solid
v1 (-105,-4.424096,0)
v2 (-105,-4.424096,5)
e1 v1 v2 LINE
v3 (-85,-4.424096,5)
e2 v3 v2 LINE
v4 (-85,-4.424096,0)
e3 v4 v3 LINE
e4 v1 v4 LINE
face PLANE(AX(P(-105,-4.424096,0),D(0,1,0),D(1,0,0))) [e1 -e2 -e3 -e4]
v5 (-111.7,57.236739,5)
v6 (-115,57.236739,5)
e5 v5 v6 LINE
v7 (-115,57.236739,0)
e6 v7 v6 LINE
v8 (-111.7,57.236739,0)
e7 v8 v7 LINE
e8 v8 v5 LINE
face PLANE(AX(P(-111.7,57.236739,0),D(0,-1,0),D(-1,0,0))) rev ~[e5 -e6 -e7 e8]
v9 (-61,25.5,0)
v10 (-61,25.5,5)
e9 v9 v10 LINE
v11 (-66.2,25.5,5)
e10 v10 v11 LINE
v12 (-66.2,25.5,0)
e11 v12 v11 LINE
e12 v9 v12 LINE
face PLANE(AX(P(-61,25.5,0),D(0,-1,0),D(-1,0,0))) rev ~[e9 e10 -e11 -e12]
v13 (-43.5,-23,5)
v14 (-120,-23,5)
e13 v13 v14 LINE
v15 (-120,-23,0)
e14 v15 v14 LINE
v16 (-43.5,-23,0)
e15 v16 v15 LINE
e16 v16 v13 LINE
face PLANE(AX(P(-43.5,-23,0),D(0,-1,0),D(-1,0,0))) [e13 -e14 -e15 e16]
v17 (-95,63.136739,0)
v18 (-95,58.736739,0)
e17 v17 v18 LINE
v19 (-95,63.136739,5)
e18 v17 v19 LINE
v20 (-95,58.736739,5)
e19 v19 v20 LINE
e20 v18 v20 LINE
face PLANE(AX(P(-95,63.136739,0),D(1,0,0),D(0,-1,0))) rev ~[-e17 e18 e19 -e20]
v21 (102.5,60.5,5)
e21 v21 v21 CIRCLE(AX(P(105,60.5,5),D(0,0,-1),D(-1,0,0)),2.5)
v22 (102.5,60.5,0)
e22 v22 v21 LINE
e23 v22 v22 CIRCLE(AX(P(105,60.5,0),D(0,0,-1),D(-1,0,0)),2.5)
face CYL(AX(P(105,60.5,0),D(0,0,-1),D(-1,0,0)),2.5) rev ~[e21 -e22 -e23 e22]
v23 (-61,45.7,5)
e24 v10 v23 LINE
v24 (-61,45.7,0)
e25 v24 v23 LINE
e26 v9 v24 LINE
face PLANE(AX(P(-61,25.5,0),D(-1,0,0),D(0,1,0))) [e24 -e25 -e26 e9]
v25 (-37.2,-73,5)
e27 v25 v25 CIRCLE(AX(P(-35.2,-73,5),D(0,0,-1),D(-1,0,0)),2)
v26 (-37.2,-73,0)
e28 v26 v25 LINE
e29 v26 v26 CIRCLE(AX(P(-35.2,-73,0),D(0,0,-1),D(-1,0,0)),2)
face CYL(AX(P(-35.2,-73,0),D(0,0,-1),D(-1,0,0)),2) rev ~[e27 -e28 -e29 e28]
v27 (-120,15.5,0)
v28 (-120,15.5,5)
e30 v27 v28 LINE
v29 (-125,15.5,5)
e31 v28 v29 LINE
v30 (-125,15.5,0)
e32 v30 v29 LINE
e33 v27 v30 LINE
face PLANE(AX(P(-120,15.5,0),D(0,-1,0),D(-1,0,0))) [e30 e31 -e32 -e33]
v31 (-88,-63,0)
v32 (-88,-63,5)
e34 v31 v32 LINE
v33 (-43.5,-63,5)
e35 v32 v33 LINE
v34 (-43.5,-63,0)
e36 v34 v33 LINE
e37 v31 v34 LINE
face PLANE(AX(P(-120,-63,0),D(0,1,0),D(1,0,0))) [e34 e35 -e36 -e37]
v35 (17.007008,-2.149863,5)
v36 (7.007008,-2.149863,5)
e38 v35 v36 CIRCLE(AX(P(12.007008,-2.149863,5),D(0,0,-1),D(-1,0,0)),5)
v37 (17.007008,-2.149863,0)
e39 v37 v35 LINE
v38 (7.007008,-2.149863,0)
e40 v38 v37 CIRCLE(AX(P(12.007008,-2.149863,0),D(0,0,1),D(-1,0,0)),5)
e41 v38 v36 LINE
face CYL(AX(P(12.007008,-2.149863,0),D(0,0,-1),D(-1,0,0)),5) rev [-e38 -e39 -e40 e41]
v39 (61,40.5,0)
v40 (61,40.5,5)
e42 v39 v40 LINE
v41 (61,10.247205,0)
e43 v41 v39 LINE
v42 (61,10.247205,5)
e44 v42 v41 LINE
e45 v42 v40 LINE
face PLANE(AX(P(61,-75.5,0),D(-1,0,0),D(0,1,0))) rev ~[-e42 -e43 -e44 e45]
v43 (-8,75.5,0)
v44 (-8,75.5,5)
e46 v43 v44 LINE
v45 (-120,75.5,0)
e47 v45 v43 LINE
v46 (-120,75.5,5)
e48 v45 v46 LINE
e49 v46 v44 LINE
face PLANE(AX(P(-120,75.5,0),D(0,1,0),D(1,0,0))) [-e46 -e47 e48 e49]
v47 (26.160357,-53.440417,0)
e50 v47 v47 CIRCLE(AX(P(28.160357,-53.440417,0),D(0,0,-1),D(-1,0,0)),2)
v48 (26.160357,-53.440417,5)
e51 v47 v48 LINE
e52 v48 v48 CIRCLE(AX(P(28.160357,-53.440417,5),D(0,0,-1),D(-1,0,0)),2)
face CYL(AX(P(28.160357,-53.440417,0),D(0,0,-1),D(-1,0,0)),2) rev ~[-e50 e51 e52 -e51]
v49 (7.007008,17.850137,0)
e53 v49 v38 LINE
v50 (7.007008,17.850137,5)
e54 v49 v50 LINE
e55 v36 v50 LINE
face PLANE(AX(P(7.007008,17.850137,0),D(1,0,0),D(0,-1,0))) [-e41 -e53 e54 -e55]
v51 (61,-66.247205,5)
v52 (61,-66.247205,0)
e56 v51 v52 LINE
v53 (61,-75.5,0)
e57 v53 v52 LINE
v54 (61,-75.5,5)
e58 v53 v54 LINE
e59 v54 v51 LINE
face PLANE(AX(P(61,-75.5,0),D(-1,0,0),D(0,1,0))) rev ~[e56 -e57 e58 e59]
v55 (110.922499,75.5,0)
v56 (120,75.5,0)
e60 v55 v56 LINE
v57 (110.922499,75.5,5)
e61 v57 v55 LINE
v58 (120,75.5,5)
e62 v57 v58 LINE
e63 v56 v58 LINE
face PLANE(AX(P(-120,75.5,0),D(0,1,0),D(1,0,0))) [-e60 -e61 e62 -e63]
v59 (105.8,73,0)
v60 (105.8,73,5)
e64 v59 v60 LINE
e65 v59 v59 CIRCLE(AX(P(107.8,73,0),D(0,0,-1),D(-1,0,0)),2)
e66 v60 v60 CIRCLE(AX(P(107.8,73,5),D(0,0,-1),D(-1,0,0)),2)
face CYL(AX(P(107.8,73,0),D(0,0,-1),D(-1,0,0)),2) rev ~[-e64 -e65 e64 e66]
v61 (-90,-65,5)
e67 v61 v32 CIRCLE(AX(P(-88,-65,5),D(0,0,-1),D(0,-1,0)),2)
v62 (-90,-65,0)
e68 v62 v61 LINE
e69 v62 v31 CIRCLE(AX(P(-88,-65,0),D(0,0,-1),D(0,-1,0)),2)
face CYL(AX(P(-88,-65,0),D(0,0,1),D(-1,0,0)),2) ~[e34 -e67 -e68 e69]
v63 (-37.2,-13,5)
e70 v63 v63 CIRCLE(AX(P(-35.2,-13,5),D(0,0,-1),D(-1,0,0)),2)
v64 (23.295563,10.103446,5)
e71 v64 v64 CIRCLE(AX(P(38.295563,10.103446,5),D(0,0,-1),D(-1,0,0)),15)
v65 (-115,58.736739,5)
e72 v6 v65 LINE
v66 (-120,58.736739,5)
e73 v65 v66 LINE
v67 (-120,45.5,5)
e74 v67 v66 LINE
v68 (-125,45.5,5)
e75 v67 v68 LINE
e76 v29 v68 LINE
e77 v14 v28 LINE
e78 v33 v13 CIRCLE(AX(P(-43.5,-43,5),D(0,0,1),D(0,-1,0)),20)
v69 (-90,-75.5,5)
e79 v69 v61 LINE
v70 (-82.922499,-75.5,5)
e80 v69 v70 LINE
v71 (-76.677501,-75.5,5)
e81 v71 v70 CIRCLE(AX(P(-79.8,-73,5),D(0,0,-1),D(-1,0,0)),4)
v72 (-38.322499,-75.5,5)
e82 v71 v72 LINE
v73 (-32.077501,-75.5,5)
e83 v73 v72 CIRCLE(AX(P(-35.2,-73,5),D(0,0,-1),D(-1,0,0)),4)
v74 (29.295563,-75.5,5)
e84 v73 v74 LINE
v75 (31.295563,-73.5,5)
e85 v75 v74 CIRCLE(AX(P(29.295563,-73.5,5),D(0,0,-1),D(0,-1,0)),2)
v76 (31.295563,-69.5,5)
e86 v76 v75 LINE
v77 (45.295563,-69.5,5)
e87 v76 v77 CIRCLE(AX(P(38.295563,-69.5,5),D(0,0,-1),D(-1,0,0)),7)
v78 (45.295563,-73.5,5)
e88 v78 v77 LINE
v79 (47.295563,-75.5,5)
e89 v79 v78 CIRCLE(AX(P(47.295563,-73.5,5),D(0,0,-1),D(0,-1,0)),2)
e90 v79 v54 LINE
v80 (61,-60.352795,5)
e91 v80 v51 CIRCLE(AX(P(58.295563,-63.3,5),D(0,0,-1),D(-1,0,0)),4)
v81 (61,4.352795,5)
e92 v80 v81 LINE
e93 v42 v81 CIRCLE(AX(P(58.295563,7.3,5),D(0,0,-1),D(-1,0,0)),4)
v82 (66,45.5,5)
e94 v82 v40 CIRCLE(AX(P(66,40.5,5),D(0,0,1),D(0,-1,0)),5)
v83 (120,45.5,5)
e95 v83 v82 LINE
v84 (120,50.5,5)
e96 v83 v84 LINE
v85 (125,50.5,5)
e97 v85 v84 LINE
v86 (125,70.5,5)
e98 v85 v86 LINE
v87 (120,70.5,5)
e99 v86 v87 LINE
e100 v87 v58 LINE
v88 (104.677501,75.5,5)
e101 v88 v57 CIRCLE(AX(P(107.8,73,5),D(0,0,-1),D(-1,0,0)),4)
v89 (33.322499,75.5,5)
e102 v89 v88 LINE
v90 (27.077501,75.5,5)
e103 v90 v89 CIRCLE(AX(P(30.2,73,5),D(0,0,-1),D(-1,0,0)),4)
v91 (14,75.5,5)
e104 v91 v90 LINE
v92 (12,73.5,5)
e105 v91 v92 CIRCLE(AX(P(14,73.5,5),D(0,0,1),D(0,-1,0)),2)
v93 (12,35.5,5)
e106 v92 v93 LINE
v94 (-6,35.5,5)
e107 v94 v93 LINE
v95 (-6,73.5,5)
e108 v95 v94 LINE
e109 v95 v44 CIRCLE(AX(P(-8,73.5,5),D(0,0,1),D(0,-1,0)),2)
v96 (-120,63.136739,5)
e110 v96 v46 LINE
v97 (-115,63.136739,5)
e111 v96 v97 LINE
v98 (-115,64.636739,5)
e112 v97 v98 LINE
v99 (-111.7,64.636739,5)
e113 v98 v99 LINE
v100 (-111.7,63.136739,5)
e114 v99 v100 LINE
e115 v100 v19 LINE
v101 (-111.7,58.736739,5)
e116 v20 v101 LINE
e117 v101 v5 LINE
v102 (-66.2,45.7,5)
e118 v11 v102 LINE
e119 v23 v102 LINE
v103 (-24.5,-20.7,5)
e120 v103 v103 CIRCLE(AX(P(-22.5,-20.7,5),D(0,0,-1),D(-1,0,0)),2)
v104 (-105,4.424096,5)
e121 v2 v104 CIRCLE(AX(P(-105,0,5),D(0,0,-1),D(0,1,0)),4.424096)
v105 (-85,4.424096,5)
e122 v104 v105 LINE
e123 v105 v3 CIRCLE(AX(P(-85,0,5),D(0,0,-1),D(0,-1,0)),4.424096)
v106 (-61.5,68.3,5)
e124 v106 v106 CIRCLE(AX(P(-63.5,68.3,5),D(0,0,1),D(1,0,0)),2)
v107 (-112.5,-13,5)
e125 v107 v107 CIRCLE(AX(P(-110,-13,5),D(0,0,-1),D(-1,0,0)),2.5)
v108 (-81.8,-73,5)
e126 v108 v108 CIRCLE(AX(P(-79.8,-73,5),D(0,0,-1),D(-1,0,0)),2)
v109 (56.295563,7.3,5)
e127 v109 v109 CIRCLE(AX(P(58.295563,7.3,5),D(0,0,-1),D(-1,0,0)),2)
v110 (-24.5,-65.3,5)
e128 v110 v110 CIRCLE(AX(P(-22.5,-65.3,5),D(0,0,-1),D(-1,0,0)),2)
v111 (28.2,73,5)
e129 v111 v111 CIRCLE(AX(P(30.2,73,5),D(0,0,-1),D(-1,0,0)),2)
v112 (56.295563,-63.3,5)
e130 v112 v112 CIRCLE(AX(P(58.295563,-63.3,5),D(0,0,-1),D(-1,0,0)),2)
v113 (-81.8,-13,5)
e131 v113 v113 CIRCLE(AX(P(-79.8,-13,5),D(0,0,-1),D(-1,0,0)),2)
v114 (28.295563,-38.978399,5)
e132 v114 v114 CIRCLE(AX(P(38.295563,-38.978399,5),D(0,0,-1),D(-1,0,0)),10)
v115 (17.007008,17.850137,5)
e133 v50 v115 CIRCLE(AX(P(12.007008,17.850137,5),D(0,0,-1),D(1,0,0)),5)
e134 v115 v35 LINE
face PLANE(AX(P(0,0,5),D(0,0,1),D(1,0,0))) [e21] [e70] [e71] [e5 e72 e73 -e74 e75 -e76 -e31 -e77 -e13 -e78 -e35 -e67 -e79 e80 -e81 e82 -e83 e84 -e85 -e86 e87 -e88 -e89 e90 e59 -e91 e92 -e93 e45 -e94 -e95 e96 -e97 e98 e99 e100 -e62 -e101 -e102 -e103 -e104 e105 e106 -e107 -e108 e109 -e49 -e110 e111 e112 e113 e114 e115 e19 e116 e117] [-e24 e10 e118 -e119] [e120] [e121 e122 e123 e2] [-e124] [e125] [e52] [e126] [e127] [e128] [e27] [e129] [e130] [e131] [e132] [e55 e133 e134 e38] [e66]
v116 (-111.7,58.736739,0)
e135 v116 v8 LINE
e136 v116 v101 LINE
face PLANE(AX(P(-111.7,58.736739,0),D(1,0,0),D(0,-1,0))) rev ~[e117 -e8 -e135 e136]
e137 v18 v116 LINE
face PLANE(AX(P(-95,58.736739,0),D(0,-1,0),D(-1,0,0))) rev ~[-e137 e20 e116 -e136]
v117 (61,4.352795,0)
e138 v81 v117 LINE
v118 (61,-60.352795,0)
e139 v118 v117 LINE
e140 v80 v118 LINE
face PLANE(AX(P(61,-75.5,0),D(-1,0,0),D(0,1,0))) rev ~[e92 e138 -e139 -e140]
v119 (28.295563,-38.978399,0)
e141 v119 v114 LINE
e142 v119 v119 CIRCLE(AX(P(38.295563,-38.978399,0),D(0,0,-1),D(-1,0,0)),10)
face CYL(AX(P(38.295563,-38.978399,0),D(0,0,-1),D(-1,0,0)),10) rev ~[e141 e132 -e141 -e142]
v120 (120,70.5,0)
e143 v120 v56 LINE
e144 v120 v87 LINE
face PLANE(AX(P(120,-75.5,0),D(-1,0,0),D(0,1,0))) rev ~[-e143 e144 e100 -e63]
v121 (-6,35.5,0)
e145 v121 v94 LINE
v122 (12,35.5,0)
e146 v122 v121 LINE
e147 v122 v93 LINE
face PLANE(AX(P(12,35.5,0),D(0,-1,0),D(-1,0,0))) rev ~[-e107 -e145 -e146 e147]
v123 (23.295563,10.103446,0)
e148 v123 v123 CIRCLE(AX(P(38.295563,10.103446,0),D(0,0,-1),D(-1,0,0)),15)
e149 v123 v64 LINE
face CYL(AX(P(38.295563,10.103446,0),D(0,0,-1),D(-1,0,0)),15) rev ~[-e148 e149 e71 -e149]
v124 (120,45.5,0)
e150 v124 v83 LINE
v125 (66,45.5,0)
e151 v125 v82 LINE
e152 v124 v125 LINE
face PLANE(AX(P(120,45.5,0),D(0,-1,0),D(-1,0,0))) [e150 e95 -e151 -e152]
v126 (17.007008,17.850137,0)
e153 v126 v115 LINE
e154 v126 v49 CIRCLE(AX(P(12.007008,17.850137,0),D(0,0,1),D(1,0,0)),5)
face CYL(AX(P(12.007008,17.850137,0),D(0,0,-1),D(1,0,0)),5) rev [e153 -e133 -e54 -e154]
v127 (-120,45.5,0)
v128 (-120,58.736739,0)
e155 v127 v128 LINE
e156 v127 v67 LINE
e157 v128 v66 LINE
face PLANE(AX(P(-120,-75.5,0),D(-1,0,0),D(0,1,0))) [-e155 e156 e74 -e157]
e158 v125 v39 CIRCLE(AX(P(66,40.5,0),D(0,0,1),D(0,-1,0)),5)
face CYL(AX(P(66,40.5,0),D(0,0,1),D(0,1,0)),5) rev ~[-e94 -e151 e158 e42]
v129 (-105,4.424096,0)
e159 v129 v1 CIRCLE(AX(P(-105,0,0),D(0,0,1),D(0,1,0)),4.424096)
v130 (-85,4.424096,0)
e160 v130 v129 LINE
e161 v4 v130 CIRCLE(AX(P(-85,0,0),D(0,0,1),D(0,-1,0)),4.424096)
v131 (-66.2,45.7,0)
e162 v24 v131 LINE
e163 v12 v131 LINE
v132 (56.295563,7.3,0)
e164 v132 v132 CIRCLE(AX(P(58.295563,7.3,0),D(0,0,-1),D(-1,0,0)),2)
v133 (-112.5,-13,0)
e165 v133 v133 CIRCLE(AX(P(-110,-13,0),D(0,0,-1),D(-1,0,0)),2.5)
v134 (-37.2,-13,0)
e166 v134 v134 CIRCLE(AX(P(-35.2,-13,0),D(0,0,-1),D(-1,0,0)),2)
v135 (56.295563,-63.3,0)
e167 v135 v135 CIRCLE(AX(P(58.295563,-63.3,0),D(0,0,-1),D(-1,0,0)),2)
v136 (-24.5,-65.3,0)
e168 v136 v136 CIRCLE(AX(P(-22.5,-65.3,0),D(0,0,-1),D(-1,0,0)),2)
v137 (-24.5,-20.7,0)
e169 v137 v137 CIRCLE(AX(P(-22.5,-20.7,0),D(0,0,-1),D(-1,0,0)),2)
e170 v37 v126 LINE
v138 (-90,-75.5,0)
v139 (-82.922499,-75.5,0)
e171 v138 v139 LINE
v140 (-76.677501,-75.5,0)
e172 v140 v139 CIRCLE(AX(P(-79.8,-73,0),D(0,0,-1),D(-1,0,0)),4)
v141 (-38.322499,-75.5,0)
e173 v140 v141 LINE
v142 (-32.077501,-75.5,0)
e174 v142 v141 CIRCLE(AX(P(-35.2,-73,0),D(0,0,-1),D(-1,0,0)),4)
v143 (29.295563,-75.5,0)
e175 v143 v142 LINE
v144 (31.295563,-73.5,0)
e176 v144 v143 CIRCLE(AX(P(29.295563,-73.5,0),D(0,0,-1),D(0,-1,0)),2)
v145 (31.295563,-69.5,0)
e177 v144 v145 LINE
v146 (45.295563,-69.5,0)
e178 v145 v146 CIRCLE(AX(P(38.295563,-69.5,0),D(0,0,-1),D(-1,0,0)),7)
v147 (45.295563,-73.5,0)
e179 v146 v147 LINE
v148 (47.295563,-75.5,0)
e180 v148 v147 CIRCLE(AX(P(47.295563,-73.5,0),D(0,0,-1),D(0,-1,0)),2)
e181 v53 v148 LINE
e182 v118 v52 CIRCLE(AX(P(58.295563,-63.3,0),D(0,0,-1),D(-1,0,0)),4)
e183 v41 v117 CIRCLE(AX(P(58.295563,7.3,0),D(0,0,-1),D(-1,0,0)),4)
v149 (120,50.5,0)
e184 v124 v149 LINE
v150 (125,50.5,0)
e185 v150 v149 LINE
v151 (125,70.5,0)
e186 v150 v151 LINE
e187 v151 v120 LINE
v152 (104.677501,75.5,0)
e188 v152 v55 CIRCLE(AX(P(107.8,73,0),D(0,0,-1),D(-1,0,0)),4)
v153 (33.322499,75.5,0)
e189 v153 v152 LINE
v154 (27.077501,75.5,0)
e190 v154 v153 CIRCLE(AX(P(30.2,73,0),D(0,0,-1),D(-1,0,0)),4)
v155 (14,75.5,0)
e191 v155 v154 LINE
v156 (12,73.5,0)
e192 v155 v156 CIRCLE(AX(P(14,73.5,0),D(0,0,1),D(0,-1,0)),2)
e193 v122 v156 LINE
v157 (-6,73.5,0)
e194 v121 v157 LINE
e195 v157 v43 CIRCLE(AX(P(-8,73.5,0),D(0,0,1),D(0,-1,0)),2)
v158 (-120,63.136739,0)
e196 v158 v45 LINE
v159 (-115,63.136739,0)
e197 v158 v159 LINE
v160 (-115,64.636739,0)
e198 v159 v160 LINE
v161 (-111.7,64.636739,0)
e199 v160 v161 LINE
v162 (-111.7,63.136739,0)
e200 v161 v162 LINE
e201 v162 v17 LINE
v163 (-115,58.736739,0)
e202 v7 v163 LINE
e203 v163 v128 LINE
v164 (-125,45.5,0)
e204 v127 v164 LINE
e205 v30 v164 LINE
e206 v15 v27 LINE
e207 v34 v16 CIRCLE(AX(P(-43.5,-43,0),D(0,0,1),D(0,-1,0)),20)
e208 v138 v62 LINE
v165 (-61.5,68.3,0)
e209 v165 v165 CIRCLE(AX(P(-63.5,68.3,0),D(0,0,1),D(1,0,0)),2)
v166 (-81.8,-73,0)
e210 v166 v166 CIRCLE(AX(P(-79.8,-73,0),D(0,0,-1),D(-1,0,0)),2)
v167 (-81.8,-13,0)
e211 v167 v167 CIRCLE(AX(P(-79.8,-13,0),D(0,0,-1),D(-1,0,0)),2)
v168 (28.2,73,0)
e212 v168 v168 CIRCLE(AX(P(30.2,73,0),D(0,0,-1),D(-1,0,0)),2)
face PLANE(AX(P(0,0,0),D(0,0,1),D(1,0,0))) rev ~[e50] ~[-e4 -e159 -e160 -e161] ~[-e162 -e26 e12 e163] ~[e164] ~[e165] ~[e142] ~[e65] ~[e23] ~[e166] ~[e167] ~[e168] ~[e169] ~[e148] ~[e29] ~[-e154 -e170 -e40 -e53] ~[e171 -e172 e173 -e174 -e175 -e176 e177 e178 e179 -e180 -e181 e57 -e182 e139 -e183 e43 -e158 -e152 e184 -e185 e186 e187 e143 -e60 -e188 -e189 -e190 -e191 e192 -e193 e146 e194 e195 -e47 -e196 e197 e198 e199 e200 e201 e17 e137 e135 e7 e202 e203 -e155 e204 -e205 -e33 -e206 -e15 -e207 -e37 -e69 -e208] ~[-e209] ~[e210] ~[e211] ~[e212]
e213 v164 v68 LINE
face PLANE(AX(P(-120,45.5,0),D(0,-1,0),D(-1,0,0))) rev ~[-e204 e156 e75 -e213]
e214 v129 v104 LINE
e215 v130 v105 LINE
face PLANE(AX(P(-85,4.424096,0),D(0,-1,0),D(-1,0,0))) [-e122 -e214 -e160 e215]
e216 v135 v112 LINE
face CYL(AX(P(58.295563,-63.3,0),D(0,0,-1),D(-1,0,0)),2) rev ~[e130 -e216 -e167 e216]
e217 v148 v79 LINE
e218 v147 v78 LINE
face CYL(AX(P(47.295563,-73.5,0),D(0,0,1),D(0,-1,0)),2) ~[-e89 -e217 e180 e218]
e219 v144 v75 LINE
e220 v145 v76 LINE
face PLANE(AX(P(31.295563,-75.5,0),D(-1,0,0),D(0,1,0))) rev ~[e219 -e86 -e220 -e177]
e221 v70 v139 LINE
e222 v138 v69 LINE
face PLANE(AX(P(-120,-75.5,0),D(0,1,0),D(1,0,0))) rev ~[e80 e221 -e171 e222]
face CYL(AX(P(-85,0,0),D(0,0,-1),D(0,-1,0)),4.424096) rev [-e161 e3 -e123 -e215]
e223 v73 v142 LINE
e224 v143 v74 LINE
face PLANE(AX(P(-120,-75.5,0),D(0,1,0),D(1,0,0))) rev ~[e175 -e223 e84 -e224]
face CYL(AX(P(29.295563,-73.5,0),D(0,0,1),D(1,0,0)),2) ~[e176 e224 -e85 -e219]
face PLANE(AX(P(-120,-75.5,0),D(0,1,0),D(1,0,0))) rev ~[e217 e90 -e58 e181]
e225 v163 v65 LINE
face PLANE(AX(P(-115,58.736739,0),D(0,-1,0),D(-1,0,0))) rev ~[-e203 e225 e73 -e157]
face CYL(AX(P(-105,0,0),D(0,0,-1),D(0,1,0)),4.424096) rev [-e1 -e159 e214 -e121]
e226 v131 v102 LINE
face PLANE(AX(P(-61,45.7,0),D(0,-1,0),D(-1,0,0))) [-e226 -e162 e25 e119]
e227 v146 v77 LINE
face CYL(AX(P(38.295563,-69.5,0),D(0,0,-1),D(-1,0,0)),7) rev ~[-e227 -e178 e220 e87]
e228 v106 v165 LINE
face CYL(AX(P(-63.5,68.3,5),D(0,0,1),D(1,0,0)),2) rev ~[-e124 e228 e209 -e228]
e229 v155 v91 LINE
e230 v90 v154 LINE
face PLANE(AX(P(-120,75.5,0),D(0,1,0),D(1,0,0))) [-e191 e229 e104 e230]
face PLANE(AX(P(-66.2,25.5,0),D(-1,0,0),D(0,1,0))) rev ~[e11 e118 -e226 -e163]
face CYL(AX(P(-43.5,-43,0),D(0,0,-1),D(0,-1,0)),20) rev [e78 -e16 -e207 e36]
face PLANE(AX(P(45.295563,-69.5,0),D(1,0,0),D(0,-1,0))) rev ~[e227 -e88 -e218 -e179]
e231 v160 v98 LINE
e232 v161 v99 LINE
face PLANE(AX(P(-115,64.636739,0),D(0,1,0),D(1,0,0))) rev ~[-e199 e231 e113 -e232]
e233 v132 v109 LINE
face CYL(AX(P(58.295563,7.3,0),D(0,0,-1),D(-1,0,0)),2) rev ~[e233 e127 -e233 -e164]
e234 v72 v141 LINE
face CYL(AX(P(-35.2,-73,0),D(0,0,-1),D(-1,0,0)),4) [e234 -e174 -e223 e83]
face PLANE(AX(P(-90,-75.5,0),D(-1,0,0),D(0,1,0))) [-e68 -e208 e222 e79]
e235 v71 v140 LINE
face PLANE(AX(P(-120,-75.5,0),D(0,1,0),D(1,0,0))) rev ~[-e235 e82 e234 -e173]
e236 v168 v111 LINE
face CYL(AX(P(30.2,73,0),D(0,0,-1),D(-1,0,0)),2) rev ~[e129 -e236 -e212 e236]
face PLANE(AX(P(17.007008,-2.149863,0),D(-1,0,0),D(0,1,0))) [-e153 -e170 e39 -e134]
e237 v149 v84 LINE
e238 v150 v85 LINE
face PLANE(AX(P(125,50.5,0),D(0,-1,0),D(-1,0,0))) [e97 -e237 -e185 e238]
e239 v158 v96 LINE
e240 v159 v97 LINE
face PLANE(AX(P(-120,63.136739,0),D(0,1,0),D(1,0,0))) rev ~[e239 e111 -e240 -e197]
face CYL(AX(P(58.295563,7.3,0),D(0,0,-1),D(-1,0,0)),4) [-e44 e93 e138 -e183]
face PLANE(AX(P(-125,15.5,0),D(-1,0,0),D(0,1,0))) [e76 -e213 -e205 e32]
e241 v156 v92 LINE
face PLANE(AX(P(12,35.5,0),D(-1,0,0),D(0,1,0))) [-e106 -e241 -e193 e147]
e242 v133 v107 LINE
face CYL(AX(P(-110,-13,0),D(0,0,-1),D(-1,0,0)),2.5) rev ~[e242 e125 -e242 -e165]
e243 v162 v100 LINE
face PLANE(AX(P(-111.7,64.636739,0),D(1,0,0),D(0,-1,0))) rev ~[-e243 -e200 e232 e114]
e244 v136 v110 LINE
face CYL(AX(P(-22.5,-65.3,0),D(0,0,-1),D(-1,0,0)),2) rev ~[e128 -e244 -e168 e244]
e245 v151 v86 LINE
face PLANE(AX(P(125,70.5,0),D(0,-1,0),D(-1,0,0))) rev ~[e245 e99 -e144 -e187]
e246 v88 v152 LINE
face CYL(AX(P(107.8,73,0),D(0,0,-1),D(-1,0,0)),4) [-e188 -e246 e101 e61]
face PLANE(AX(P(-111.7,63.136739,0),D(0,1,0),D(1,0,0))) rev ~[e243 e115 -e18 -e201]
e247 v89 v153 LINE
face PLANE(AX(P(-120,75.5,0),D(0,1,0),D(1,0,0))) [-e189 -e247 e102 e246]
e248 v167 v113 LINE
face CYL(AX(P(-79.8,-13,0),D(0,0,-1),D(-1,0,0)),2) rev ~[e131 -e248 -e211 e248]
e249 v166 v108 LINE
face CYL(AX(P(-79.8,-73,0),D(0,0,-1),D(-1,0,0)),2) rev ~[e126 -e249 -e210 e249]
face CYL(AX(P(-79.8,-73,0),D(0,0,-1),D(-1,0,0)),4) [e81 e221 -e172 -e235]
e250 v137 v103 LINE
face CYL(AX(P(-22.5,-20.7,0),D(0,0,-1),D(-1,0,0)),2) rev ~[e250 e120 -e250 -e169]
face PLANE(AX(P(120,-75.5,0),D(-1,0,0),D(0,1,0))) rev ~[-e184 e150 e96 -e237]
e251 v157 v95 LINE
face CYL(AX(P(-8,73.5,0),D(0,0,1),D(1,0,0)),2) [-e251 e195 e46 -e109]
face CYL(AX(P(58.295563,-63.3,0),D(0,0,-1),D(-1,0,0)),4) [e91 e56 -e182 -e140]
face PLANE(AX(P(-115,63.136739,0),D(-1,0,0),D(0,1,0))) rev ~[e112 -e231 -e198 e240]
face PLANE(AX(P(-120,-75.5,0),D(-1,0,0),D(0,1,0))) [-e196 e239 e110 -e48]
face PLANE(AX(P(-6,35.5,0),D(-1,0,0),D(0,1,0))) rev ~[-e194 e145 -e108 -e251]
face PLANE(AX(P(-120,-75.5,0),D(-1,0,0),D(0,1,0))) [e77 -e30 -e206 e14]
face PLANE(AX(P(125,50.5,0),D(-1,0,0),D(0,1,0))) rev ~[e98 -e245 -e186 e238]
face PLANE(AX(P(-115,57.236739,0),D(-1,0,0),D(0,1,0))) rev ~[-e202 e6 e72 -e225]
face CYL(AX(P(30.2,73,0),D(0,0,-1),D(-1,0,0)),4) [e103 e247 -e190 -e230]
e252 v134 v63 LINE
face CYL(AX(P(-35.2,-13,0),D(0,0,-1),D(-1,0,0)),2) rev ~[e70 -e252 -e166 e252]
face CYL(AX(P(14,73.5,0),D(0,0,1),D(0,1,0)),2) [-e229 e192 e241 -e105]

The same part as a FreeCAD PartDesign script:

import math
import FreeCAD as App
import Part
import Sketcher
Q = App.Units.Quantity


def edges_at(feature, points):
    """Names of the edges that pass closest to the given points."""
    edges = feature.Shape.Edges
    near = lambda p: min(range(len(edges)), key=lambda i: edges[i].distToShape(Part.Vertex(*p))[0])
    return sorted({f"Edge{near(p) + 1}" for p in points})


def add_polygon(sketch, points):
    """Adds a closed chain of lines whose ends are joined by coincident constraints."""
    first, n = sketch.GeometryCount, len(points)
    for a, b in zip(points, points[1:] + points[:1]):
        sketch.addGeometry(Part.LineSegment(App.Vector(*a, 0), App.Vector(*b, 0)), False)
    for i in range(n):
        sketch.addConstraint(Sketcher.Constraint("Coincident", first + i, 2, first + (i + 1) % n, 1))

doc = App.newDocument("Part")
body = doc.addObject("PartDesign::Body", "Body")

# Sketch on XY plane
sketch1 = body.newObject("Sketcher::SketchObject", "Sketch")
sketch1.AttachmentSupport = (doc.getObject("XY_Plane"), [""])
sketch1.MapMode = "FlatFace"
add_polygon(sketch1, [(-120, 76), (-120, -76), (120, -76), (120, 76)])  # lines 0-3
sketch1.addConstraint(Sketcher.Constraint("Vertical", 0))
sketch1.addConstraint(Sketcher.Constraint("Horizontal", 1))
sketch1.addConstraint(Sketcher.Constraint("Vertical", 2))
sketch1.addConstraint(Sketcher.Constraint("Horizontal", 3))
sketch1.addConstraint(Sketcher.Constraint("Symmetric", 0, 2, 2, 2, -1, 1))
sketch1.addConstraint(Sketcher.Constraint("DistanceX", 1, 1, 1, 2, Q("240 mm")))
sketch1.addConstraint(Sketcher.Constraint("DistanceY", 0, 2, 0, 1, Q("151 mm")))
pad1 = body.newObject("PartDesign::Pad", "Pad")
pad1.Profile = sketch1
pad1.Length = 5

# Sketch on XY plane
sketch2 = body.newObject("Sketcher::SketchObject", "Sketch001")
sketch2.AttachmentSupport = (doc.getObject("XY_Plane"), [""])
sketch2.MapMode = "FlatFace"
sketch2.addGeometry(Part.Circle(App.Vector(-35.2, -73, 0), App.Vector(0, 0, 1), 2), False)
sketch2.addGeometry(Part.Circle(App.Vector(-79.8, -73, 0), App.Vector(0, 0, 1), 2), False)
sketch2.addGeometry(Part.Circle(App.Vector(-22.5, -65.3, 0), App.Vector(0, 0, 1), 2), False)
sketch2.addGeometry(Part.Circle(App.Vector(-22.5, -20.7, 0), App.Vector(0, 0, 1), 2), False)
sketch2.addGeometry(Part.Circle(App.Vector(-79.8, -13, 0), App.Vector(0, 0, 1), 2), False)
sketch2.addGeometry(Part.Circle(App.Vector(-35.2, -13, 0), App.Vector(0, 0, 1), 2), False)
sketch2.addConstraint(Sketcher.Constraint("Equal", 0, 1))
sketch2.addConstraint(Sketcher.Constraint("Equal", 1, 2))
sketch2.addConstraint(Sketcher.Constraint("Equal", 2, 3))
sketch2.addConstraint(Sketcher.Constraint("Equal", 3, 4))
sketch2.addConstraint(Sketcher.Constraint("Equal", 4, 5))
sketch2.addConstraint(Sketcher.Constraint("Horizontal", 0, 3, 1, 3))
sketch2.addConstraint(Sketcher.Constraint("Horizontal", 4, 3, 5, 3))
sketch2.addConstraint(Sketcher.Constraint("Vertical", 2, 3, 3, 3))
sketch2.addConstraint(Sketcher.Constraint("Vertical", 1, 3, 4, 3))
sketch2.addConstraint(Sketcher.Constraint("Vertical", 0, 3, 5, 3))
sketch2.addConstraint(Sketcher.Constraint("Diameter", 0, Q("4 mm")))
sketch2.addConstraint(Sketcher.Constraint("DistanceY", 0, 3, -1, 1, Q("73 mm")))
sketch2.addConstraint(Sketcher.Constraint("DistanceY", 4, 3, -1, 1, Q("13 mm")))
sketch2.addConstraint(Sketcher.Constraint("DistanceX", 0, 3, -1, 1, Q("35.2 mm")))
sketch2.addConstraint(Sketcher.Constraint("DistanceX", 1, 3, -1, 1, Q("79.8 mm")))
sketch2.addConstraint(Sketcher.Constraint("DistanceX", 2, 3, -1, 1, Q("22.5 mm")))
sketch2.addConstraint(Sketcher.Constraint("DistanceY", 2, 3, -1, 1, Q("65.3 mm")))
sketch2.addConstraint(Sketcher.Constraint("DistanceY", 3, 3, -1, 1, Q("20.7 mm")))
pocket1 = body.newObject("PartDesign::Pocket", "Pocket")
pocket1.Profile = sketch2
pocket1.Length = 5
pocket1.Reversed = True

# Sketch on XY plane
sketch3 = body.newObject("Sketcher::SketchObject", "Sketch002")
sketch3.AttachmentSupport = (doc.getObject("XY_Plane"), [""])
sketch3.MapMode = "FlatFace"
sketch3.addGeometry(Part.Circle(App.Vector(-35.2, -73, 0), App.Vector(0, 0, 1), 4), False)
sketch3.addGeometry(Part.Circle(App.Vector(-35.2, -73, 0), App.Vector(0, 0, 1), 2), False)
sketch3.addGeometry(Part.Circle(App.Vector(-79.8, -73, 0), App.Vector(0, 0, 1), 4), False)
sketch3.addGeometry(Part.Circle(App.Vector(-79.8, -73, 0), App.Vector(0, 0, 1), 2), False)
sketch3.addConstraint(Sketcher.Constraint("Coincident", 1, 3, 0, 3))
sketch3.addConstraint(Sketcher.Constraint("Coincident", 3, 3, 2, 3))
sketch3.addConstraint(Sketcher.Constraint("Equal", 0, 2))
sketch3.addConstraint(Sketcher.Constraint("Equal", 1, 3))
sketch3.addConstraint(Sketcher.Constraint("Horizontal", 1, 3, 2, 3))
sketch3.addConstraint(Sketcher.Constraint("Diameter", 0, Q("8 mm")))
sketch3.addConstraint(Sketcher.Constraint("Diameter", 1, Q("4 mm")))
sketch3.addConstraint(Sketcher.Constraint("DistanceY", 0, 3, -1, 1, Q("73 mm")))
sketch3.addConstraint(Sketcher.Constraint("DistanceX", 0, 3, -1, 1, Q("35.2 mm")))
sketch3.addConstraint(Sketcher.Constraint("DistanceX", 2, 3, -1, 1, Q("79.8 mm")))
pad2 = body.newObject("PartDesign::Pad", "Pad001")
pad2.Profile = sketch3
pad2.Length = 5

# Sketch on XY plane
sketch4 = body.newObject("Sketcher::SketchObject", "Sketch003")
sketch4.AttachmentSupport = (doc.getObject("XY_Plane"), [""])
sketch4.MapMode = "FlatFace"
sketch4.addGeometry(Part.LineSegment(App.Vector(-44, -63, 0), App.Vector(-120, -63, 0)), False)
sketch4.addGeometry(Part.LineSegment(App.Vector(-120, -63, 0), App.Vector(-120, -23, 0)), False)
sketch4.addGeometry(Part.LineSegment(App.Vector(-120, -23, 0), App.Vector(-44, -23, 0)), False)
sketch4.addGeometry(Part.ArcOfCircle(Part.Circle(App.Vector(-44, -43, 0), App.Vector(0, 0, 1), 20), math.radians(-90), math.radians(90)), False)
sketch4.addConstraint(Sketcher.Constraint("Coincident", 0, 2, 1, 1))
sketch4.addConstraint(Sketcher.Constraint("Coincident", 1, 2, 2, 1))
sketch4.addConstraint(Sketcher.Constraint("Tangent", 2, 2, 3, 2))
sketch4.addConstraint(Sketcher.Constraint("Tangent", 3, 1, 0, 1))
sketch4.addConstraint(Sketcher.Constraint("Horizontal", 0))
sketch4.addConstraint(Sketcher.Constraint("Vertical", 1))
sketch4.addConstraint(Sketcher.Constraint("Horizontal", 2))
sketch4.addConstraint(Sketcher.Constraint("Radius", 3, Q("20 mm")))
sketch4.addConstraint(Sketcher.Constraint("DistanceX", 0, 2, 0, 1, Q("76.5 mm")))
sketch4.addConstraint(Sketcher.Constraint("DistanceY", 3, 3, -1, 1, Q("43 mm")))
sketch4.addConstraint(Sketcher.Constraint("DistanceX", 0, 2, -1, 1, Q("120 mm")))
pocket2 = body.newObject("PartDesign::Pocket", "Pocket001")
pocket2.Profile = sketch4
pocket2.Length = 5
pocket2.Reversed = True

# Sketch on XY plane
sketch5 = body.newObject("Sketcher::SketchObject", "Sketch004")
sketch5.AttachmentSupport = (doc.getObject("XY_Plane"), [""])
sketch5.MapMode = "FlatFace"
add_polygon(sketch5, [(-90, -63), (-90, -76), (-120, -76), (-120, -63)])  # lines 0-3
sketch5.addConstraint(Sketcher.Constraint("Vertical", 0))
sketch5.addConstraint(Sketcher.Constraint("Horizontal", 1))
sketch5.addConstraint(Sketcher.Constraint("Vertical", 2))
sketch5.addConstraint(Sketcher.Constraint("Horizontal", 3))
sketch5.addConstraint(Sketcher.Constraint("DistanceX", 1, 2, 1, 1, Q("30 mm")))
sketch5.addConstraint(Sketcher.Constraint("DistanceY", 0, 2, 0, 1, Q("12.5 mm")))
sketch5.addConstraint(Sketcher.Constraint("DistanceX", 0, 2, -1, 1, Q("90 mm")))
sketch5.addConstraint(Sketcher.Constraint("DistanceY", 2, 2, -1, 1, Q("63 mm")))
pocket3 = body.newObject("PartDesign::Pocket", "Pocket002")
pocket3.Profile = sketch5
pocket3.Length = 5
pocket3.Reversed = True

# Sketch on XY plane
sketch6 = body.newObject("Sketcher::SketchObject", "Sketch005")
sketch6.AttachmentSupport = (doc.getObject("XY_Plane"), [""])
sketch6.MapMode = "FlatFace"
add_polygon(sketch6, [(120, 46), (120, -76), (61, -76), (61, 46)])  # lines 0-3
sketch6.addConstraint(Sketcher.Constraint("Vertical", 0))
sketch6.addConstraint(Sketcher.Constraint("Horizontal", 1))
sketch6.addConstraint(Sketcher.Constraint("Vertical", 2))
sketch6.addConstraint(Sketcher.Constraint("Horizontal", 3))
sketch6.addConstraint(Sketcher.Constraint("DistanceX", 1, 2, 1, 1, Q("59 mm")))
sketch6.addConstraint(Sketcher.Constraint("DistanceY", 0, 2, 0, 1, Q("121 mm")))
sketch6.addConstraint(Sketcher.Constraint("DistanceX", -1, 1, 0, 2, Q("120 mm")))
sketch6.addConstraint(Sketcher.Constraint("DistanceY", 0, 2, -1, 1, Q("75.5 mm")))
pocket4 = body.newObject("PartDesign::Pocket", "Pocket003")
pocket4.Profile = sketch6
pocket4.Length = 5
pocket4.Reversed = True

# Sketch on XY plane
sketch7 = body.newObject("Sketcher::SketchObject", "Sketch006")
sketch7.AttachmentSupport = (doc.getObject("XY_Plane"), [""])
sketch7.MapMode = "FlatFace"
add_polygon(sketch7, [(12, 76), (12, 36), (-6, 36), (-6, 76)])  # lines 0-3
sketch7.addConstraint(Sketcher.Constraint("Vertical", 0))
sketch7.addConstraint(Sketcher.Constraint("Horizontal", 1))
sketch7.addConstraint(Sketcher.Constraint("Vertical", 2))
sketch7.addConstraint(Sketcher.Constraint("Horizontal", 3))
sketch7.addConstraint(Sketcher.Constraint("DistanceX", 1, 2, 1, 1, Q("18 mm")))
sketch7.addConstraint(Sketcher.Constraint("DistanceY", 0, 2, 0, 1, Q("40 mm")))
sketch7.addConstraint(Sketcher.Constraint("DistanceX", -1, 1, 0, 2, Q("12 mm")))
sketch7.addConstraint(Sketcher.Constraint("DistanceY", -1, 1, 0, 2, Q("35.5 mm")))
pocket5 = body.newObject("PartDesign::Pocket", "Pocket004")
pocket5.Profile = sketch7
pocket5.Length = 10
pocket5.Reversed = True

# Sketch on XY plane
sketch8 = body.newObject("Sketcher::SketchObject", "Sketch007")
sketch8.AttachmentSupport = (doc.getObject("XY_Plane"), [""])
sketch8.MapMode = "FlatFace"
sketch8.addGeometry(Part.Circle(App.Vector(58.3, 7.3, 0), App.Vector(0, 0, 1), 2), False)
sketch8.addGeometry(Part.Circle(App.Vector(58.3, -63.3, 0), App.Vector(0, 0, 1), 2), False)
sketch8.addConstraint(Sketcher.Constraint("Equal", 0, 1))
sketch8.addConstraint(Sketcher.Constraint("Vertical", 0, 3, 1, 3))
sketch8.addConstraint(Sketcher.Constraint("Diameter", 0, Q("4 mm")))
sketch8.addConstraint(Sketcher.Constraint("DistanceY", -1, 1, 0, 3, Q("7.3 mm")))
sketch8.addConstraint(Sketcher.Constraint("DistanceY", 1, 3, -1, 1, Q("63.3 mm")))
sketch8.addConstraint(Sketcher.Constraint("DistanceX", -1, 1, 0, 3, Q("58.295563 mm")))
pocket6 = body.newObject("PartDesign::Pocket", "Pocket005")
pocket6.Profile = sketch8
pocket6.Length = 10
pocket6.Reversed = True

# Sketch on XY plane
sketch9 = body.newObject("Sketcher::SketchObject", "Sketch008")
sketch9.AttachmentSupport = (doc.getObject("XY_Plane"), [""])
sketch9.MapMode = "FlatFace"
sketch9.AttachmentOffset = App.Placement(App.Vector(0, 0, 5), App.Rotation())
sketch9.addGeometry(Part.Circle(App.Vector(-63.5, 68.3, 0), App.Vector(0, 0, 1), 2), False)
sketch9.addConstraint(Sketcher.Constraint("Diameter", 0, Q("4 mm")))
sketch9.addConstraint(Sketcher.Constraint("DistanceX", 0, 3, -1, 1, Q("63.5 mm")))
sketch9.addConstraint(Sketcher.Constraint("DistanceY", -1, 1, 0, 3, Q("68.3 mm")))
pocket7 = body.newObject("PartDesign::Pocket", "Pocket006")
pocket7.Profile = sketch9
pocket7.Length = 5

# Sketch on XY plane
sketch10 = body.newObject("Sketcher::SketchObject", "Sketch009")
sketch10.AttachmentSupport = (doc.getObject("XY_Plane"), [""])
sketch10.MapMode = "FlatFace"
add_polygon(sketch10, [(-61, 46), (-61, 26), (-66, 26), (-66, 46)])  # lines 0-3
sketch10.addConstraint(Sketcher.Constraint("Vertical", 0))
sketch10.addConstraint(Sketcher.Constraint("Horizontal", 1))
sketch10.addConstraint(Sketcher.Constraint("Vertical", 2))
sketch10.addConstraint(Sketcher.Constraint("Horizontal", 3))
sketch10.addConstraint(Sketcher.Constraint("DistanceX", 1, 2, 1, 1, Q("5.2 mm")))
sketch10.addConstraint(Sketcher.Constraint("DistanceY", 0, 2, 0, 1, Q("20.2 mm")))
sketch10.addConstraint(Sketcher.Constraint("DistanceX", 0, 2, -1, 1, Q("61 mm")))
sketch10.addConstraint(Sketcher.Constraint("DistanceY", -1, 1, 0, 2, Q("25.5 mm")))
pocket8 = body.newObject("PartDesign::Pocket", "Pocket007")
pocket8.Profile = sketch10
pocket8.Length = 5
pocket8.Reversed = True

# Sketch on XY plane
sketch11 = body.newObject("Sketcher::SketchObject", "Sketch010")
sketch11.AttachmentSupport = (doc.getObject("XY_Plane"), [""])
sketch11.MapMode = "FlatFace"
sketch11.addGeometry(Part.Circle(App.Vector(58.3, 7.3, 0), App.Vector(0, 0, 1), 4), False)
sketch11.addGeometry(Part.Circle(App.Vector(58.3, 7.3, 0), App.Vector(0, 0, 1), 2), False)
sketch11.addGeometry(Part.Circle(App.Vector(58.3, -63.3, 0), App.Vector(0, 0, 1), 4), False)
sketch11.addGeometry(Part.Circle(App.Vector(58.3, -63.3, 0), App.Vector(0, 0, 1), 2), False)
sketch11.addConstraint(Sketcher.Constraint("Coincident", 1, 3, 0, 3))
sketch11.addConstraint(Sketcher.Constraint("Coincident", 3, 3, 2, 3))
sketch11.addConstraint(Sketcher.Constraint("Equal", 0, 2))
sketch11.addConstraint(Sketcher.Constraint("Equal", 1, 3))
sketch11.addConstraint(Sketcher.Constraint("Vertical", 1, 3, 2, 3))
sketch11.addConstraint(Sketcher.Constraint("Diameter", 0, Q("8 mm")))
sketch11.addConstraint(Sketcher.Constraint("Diameter", 1, Q("4 mm")))
sketch11.addConstraint(Sketcher.Constraint("DistanceY", -1, 1, 0, 3, Q("7.3 mm")))
sketch11.addConstraint(Sketcher.Constraint("DistanceY", 2, 3, -1, 1, Q("63.3 mm")))
sketch11.addConstraint(Sketcher.Constraint("DistanceX", -1, 1, 0, 3, Q("58.295563 mm")))
pad3 = body.newObject("PartDesign::Pad", "Pad002")
pad3.Profile = sketch11
pad3.Length = 5

# Sketch on XY plane
sketch12 = body.newObject("Sketcher::SketchObject", "Sketch011")
sketch12.AttachmentSupport = (doc.getObject("XY_Plane"), [""])
sketch12.MapMode = "FlatFace"
sketch12.addGeometry(Part.LineSegment(App.Vector(7, -2, 0), App.Vector(7, 18, 0)), False)
sketch12.addGeometry(Part.ArcOfCircle(Part.Circle(App.Vector(12, 18, 0), App.Vector(0, 0, 1), 5), math.radians(0), math.radians(180)), False)
sketch12.addGeometry(Part.LineSegment(App.Vector(17, 18, 0), App.Vector(17, -2, 0)), False)
sketch12.addGeometry(Part.ArcOfCircle(Part.Circle(App.Vector(12, -2, 0), App.Vector(0, 0, 1), 5), math.radians(180), math.radians(360)), False)
sketch12.addConstraint(Sketcher.Constraint("Tangent", 0, 2, 1, 2))
sketch12.addConstraint(Sketcher.Constraint("Tangent", 1, 1, 2, 1))
sketch12.addConstraint(Sketcher.Constraint("Tangent", 2, 2, 3, 2))
sketch12.addConstraint(Sketcher.Constraint("Tangent", 3, 1, 0, 1))
sketch12.addConstraint(Sketcher.Constraint("Vertical", 0))
sketch12.addConstraint(Sketcher.Constraint("Vertical", 2))
sketch12.addConstraint(Sketcher.Constraint("Radius", 1, Q("5 mm")))
sketch12.addConstraint(Sketcher.Constraint("DistanceY", 0, 1, 0, 2, Q("20 mm")))
sketch12.addConstraint(Sketcher.Constraint("DistanceX", -1, 1, 1, 3, Q("12.007008 mm")))
sketch12.addConstraint(Sketcher.Constraint("DistanceY", -1, 1, 1, 3, Q("17.850137 mm")))
pocket9 = body.newObject("PartDesign::Pocket", "Pocket008")
pocket9.Profile = sketch12
pocket9.Length = 10
pocket9.Reversed = True

# Sketch on XY plane
sketch13 = body.newObject("Sketcher::SketchObject", "Sketch012")
sketch13.AttachmentSupport = (doc.getObject("XY_Plane"), [""])
sketch13.MapMode = "FlatFace"
sketch13.addGeometry(Part.Circle(App.Vector(38, 10, 0), App.Vector(0, 0, 1), 15), False)
sketch13.addConstraint(Sketcher.Constraint("Diameter", 0, Q("30 mm")))
sketch13.addConstraint(Sketcher.Constraint("DistanceX", -1, 1, 0, 3, Q("38.295563 mm")))
sketch13.addConstraint(Sketcher.Constraint("DistanceY", -1, 1, 0, 3, Q("10.103446 mm")))
pocket10 = body.newObject("PartDesign::Pocket", "Pocket009")
pocket10.Profile = sketch13
pocket10.Length = 10
pocket10.Reversed = True

# Sketch on XY plane
sketch14 = body.newObject("Sketcher::SketchObject", "Sketch013")
sketch14.AttachmentSupport = (doc.getObject("XY_Plane"), [""])
sketch14.MapMode = "FlatFace"
sketch14.addGeometry(Part.ArcOfCircle(Part.Circle(App.Vector(38, -70, 0), App.Vector(0, 0, 1), 7), math.radians(0), math.radians(180)), False)
sketch14.addGeometry(Part.LineSegment(App.Vector(45, -70, 0), App.Vector(45, -76, 0)), False)
sketch14.addGeometry(Part.LineSegment(App.Vector(45, -76, 0), App.Vector(31, -76, 0)), False)
sketch14.addGeometry(Part.LineSegment(App.Vector(31, -76, 0), App.Vector(31, -70, 0)), False)
sketch14.addConstraint(Sketcher.Constraint("Tangent", 0, 1, 1, 1))
sketch14.addConstraint(Sketcher.Constraint("Coincident", 1, 2, 2, 1))
sketch14.addConstraint(Sketcher.Constraint("Coincident", 2, 2, 3, 1))
sketch14.addConstraint(Sketcher.Constraint("Tangent", 3, 2, 0, 2))
sketch14.addConstraint(Sketcher.Constraint("Vertical", 1))
sketch14.addConstraint(Sketcher.Constraint("Horizontal", 2))
sketch14.addConstraint(Sketcher.Constraint("Vertical", 3))
sketch14.addConstraint(Sketcher.Constraint("Radius", 0, Q("7 mm")))
sketch14.addConstraint(Sketcher.Constraint("DistanceY", 1, 2, 1, 1, Q("6 mm")))
sketch14.addConstraint(Sketcher.Constraint("DistanceY", 0, 3, -1, 1, Q("69.5 mm")))
sketch14.addConstraint(Sketcher.Constraint("DistanceX", -1, 1, 0, 3, Q("38.295563 mm")))
pocket11 = body.newObject("PartDesign::Pocket", "Pocket010")
pocket11.Profile = sketch14
pocket11.Type = "ThroughAll"
pocket11.Midplane = True

# Sketch on XY plane
sketch15 = body.newObject("Sketcher::SketchObject", "Sketch014")
sketch15.AttachmentSupport = (doc.getObject("XY_Plane"), [""])
sketch15.MapMode = "FlatFace"
sketch15.addGeometry(Part.Circle(App.Vector(107.8, 73, 0), App.Vector(0, 0, 1), 2), False)
sketch15.addGeometry(Part.Circle(App.Vector(30.2, 73, 0), App.Vector(0, 0, 1), 2), False)
sketch15.addConstraint(Sketcher.Constraint("Equal", 0, 1))
sketch15.addConstraint(Sketcher.Constraint("Horizontal", 0, 3, 1, 3))
sketch15.addConstraint(Sketcher.Constraint("Diameter", 0, Q("4 mm")))
sketch15.addConstraint(Sketcher.Constraint("DistanceY", -1, 1, 0, 3, Q("73 mm")))
sketch15.addConstraint(Sketcher.Constraint("DistanceX", -1, 1, 0, 3, Q("107.8 mm")))
sketch15.addConstraint(Sketcher.Constraint("DistanceX", -1, 1, 1, 3, Q("30.2 mm")))
pocket12 = body.newObject("PartDesign::Pocket", "Pocket011")
pocket12.Profile = sketch15
pocket12.Length = 5
pocket12.Reversed = True

# Sketch on XY plane
sketch16 = body.newObject("Sketcher::SketchObject", "Sketch015")
sketch16.AttachmentSupport = (doc.getObject("XY_Plane"), [""])
sketch16.MapMode = "FlatFace"
sketch16.addGeometry(Part.Circle(App.Vector(107.8, 73, 0), App.Vector(0, 0, 1), 4), False)
sketch16.addGeometry(Part.Circle(App.Vector(107.8, 73, 0), App.Vector(0, 0, 1), 2), False)
sketch16.addGeometry(Part.Circle(App.Vector(30.2, 73, 0), App.Vector(0, 0, 1), 4), False)
sketch16.addGeometry(Part.Circle(App.Vector(30.2, 73, 0), App.Vector(0, 0, 1), 2), False)
sketch16.addConstraint(Sketcher.Constraint("Coincident", 1, 3, 0, 3))
sketch16.addConstraint(Sketcher.Constraint("Coincident", 3, 3, 2, 3))
sketch16.addConstraint(Sketcher.Constraint("Equal", 0, 2))
sketch16.addConstraint(Sketcher.Constraint("Equal", 1, 3))
sketch16.addConstraint(Sketcher.Constraint("Horizontal", 1, 3, 2, 3))
sketch16.addConstraint(Sketcher.Constraint("Diameter", 0, Q("8 mm")))
sketch16.addConstraint(Sketcher.Constraint("Diameter", 1, Q("4 mm")))
sketch16.addConstraint(Sketcher.Constraint("DistanceY", -1, 1, 0, 3, Q("73 mm")))
sketch16.addConstraint(Sketcher.Constraint("DistanceX", -1, 1, 0, 3, Q("107.8 mm")))
sketch16.addConstraint(Sketcher.Constraint("DistanceX", -1, 1, 2, 3, Q("30.2 mm")))
pad4 = body.newObject("PartDesign::Pad", "Pad003")
pad4.Profile = sketch16
pad4.Length = 5

# Sketch on XY plane
sketch17 = body.newObject("Sketcher::SketchObject", "Sketch016")
sketch17.AttachmentSupport = (doc.getObject("XY_Plane"), [""])
sketch17.MapMode = "FlatFace"
sketch17.addGeometry(Part.Circle(App.Vector(-110, -13, 0), App.Vector(0, 0, 1), 2.5), False)
sketch17.addConstraint(Sketcher.Constraint("Diameter", 0, Q("5 mm")))
sketch17.addConstraint(Sketcher.Constraint("DistanceX", 0, 3, -1, 1, Q("110 mm")))
sketch17.addConstraint(Sketcher.Constraint("DistanceY", 0, 3, -1, 1, Q("13 mm")))
pocket13 = body.newObject("PartDesign::Pocket", "Pocket012")
pocket13.Profile = sketch17
pocket13.Length = 10
pocket13.Reversed = True

# Sketch on XY plane
sketch18 = body.newObject("Sketcher::SketchObject", "Sketch017")
sketch18.AttachmentSupport = (doc.getObject("XY_Plane"), [""])
sketch18.MapMode = "FlatFace"
sketch18.addGeometry(Part.LineSegment(App.Vector(-85, -4.4, 0), App.Vector(-105, -4.4, 0)), False)
sketch18.addGeometry(Part.ArcOfCircle(Part.Circle(App.Vector(-105, 0, 0), App.Vector(0, 0, 1), 4.4), math.radians(90), math.radians(270)), False)
sketch18.addGeometry(Part.LineSegment(App.Vector(-105, 4.4, 0), App.Vector(-85, 4.4, 0)), False)
sketch18.addGeometry(Part.ArcOfCircle(Part.Circle(App.Vector(-85, 0, 0), App.Vector(0, 0, 1), 4.4), math.radians(-90), math.radians(90)), False)
sketch18.addConstraint(Sketcher.Constraint("Tangent", 0, 2, 1, 2))
sketch18.addConstraint(Sketcher.Constraint("Tangent", 1, 1, 2, 1))
sketch18.addConstraint(Sketcher.Constraint("Tangent", 2, 2, 3, 2))
sketch18.addConstraint(Sketcher.Constraint("Tangent", 3, 1, 0, 1))
sketch18.addConstraint(Sketcher.Constraint("Horizontal", 0))
sketch18.addConstraint(Sketcher.Constraint("Horizontal", 2))
sketch18.addConstraint(Sketcher.Constraint("PointOnObject", 1, 3, -1))
sketch18.addConstraint(Sketcher.Constraint("DistanceX", 0, 2, 0, 1, Q("20 mm")))
sketch18.addConstraint(Sketcher.Constraint("DistanceX", 1, 3, -1, 1, Q("105 mm")))
sketch18.addConstraint(Sketcher.Constraint("Radius", 1, Q("4.424096 mm")))
pocket14 = body.newObject("PartDesign::Pocket", "Pocket013")
pocket14.Profile = sketch18
pocket14.Length = 10
pocket14.Reversed = True

# Sketch on XY plane
sketch19 = body.newObject("Sketcher::SketchObject", "Sketch018")
sketch19.AttachmentSupport = (doc.getObject("XY_Plane"), [""])
sketch19.MapMode = "FlatFace"
sketch19.addGeometry(Part.Circle(App.Vector(105, 60.5, 0), App.Vector(0, 0, 1), 2.5), False)
sketch19.addConstraint(Sketcher.Constraint("Diameter", 0, Q("5 mm")))
sketch19.addConstraint(Sketcher.Constraint("DistanceX", -1, 1, 0, 3, Q("105 mm")))
sketch19.addConstraint(Sketcher.Constraint("DistanceY", -1, 1, 0, 3, Q("60.5 mm")))
pocket15 = body.newObject("PartDesign::Pocket", "Pocket014")
pocket15.Profile = sketch19
pocket15.Length = 10
pocket15.Reversed = True

# Sketch on XY plane
sketch20 = body.newObject("Sketcher::SketchObject", "Sketch019")
sketch20.AttachmentSupport = (doc.getObject("XY_Plane"), [""])
sketch20.MapMode = "FlatFace"
add_polygon(sketch20, [(-120, 46), (-120, 16), (-125, 16), (-125, 46)])  # lines 0-3
add_polygon(sketch20, [(125, 70), (125, 50), (120, 50), (120, 70)])  # lines 4-7
sketch20.addConstraint(Sketcher.Constraint("Vertical", 0))
sketch20.addConstraint(Sketcher.Constraint("Horizontal", 1))
sketch20.addConstraint(Sketcher.Constraint("Vertical", 2))
sketch20.addConstraint(Sketcher.Constraint("Horizontal", 3))
sketch20.addConstraint(Sketcher.Constraint("Vertical", 4))
sketch20.addConstraint(Sketcher.Constraint("Horizontal", 5))
sketch20.addConstraint(Sketcher.Constraint("Vertical", 6))
sketch20.addConstraint(Sketcher.Constraint("Horizontal", 7))
sketch20.addConstraint(Sketcher.Constraint("Equal", 3, 5))
sketch20.addConstraint(Sketcher.Constraint("DistanceX", 1, 2, 1, 1, Q("5 mm")))
sketch20.addConstraint(Sketcher.Constraint("DistanceY", 0, 2, 0, 1, Q("30 mm")))
sketch20.addConstraint(Sketcher.Constraint("DistanceY", 4, 2, 4, 1, Q("20 mm")))
sketch20.addConstraint(Sketcher.Constraint("DistanceX", 0, 2, -1, 1, Q("120 mm")))
sketch20.addConstraint(Sketcher.Constraint("DistanceX", -1, 1, 4, 2, Q("125 mm")))
sketch20.addConstraint(Sketcher.Constraint("DistanceY", 3, 2, 4, 2, Q("5 mm")))
sketch20.addConstraint(Sketcher.Constraint("DistanceY", -1, 1, 0, 2, Q("15.5 mm")))
pad5 = body.newObject("PartDesign::Pad", "Pad004")
pad5.Profile = sketch20
pad5.Length = 5
doc.recompute()

fillet = body.newObject("PartDesign::Fillet", "Fillet")
fillet.Base = (pad5, edges_at(pad5, [(61, 45.5, 2.5)]))
fillet.Radius = 5
doc.recompute()

fillet2 = body.newObject("PartDesign::Fillet", "Fillet001")
fillet2.Base = (fillet, edges_at(fillet, [
    (12, 75.5, 2.5),
    (-6, 75.5, 2.5),
    (31.296, -75.5, 2.5),
    (45.296, -75.5, 2.5),
    (-90, -63, 2.5),
]))
fillet2.Radius = 2

# Sketch on XY plane
sketch21 = body.newObject("Sketcher::SketchObject", "Sketch020")
sketch21.AttachmentSupport = (doc.getObject("XY_Plane"), [""])
sketch21.MapMode = "FlatFace"
add_polygon(sketch21, [(-115, 58.7), (-120, 58.7), (-120, 63.1), (-115, 63.1), (-115, 64.6), (-111.7, 64.6), (-111.7, 63.1), (-95, 63.1), (-95, 58.7), (-111.7, 58.7), (-111.7, 57.2), (-115, 57.2)])  # lines 0-11
sketch21.addConstraint(Sketcher.Constraint("Horizontal", 0))
sketch21.addConstraint(Sketcher.Constraint("Vertical", 1))
sketch21.addConstraint(Sketcher.Constraint("Horizontal", 2))
sketch21.addConstraint(Sketcher.Constraint("Vertical", 3))
sketch21.addConstraint(Sketcher.Constraint("Horizontal", 4))
sketch21.addConstraint(Sketcher.Constraint("Vertical", 5))
sketch21.addConstraint(Sketcher.Constraint("Horizontal", 6))
sketch21.addConstraint(Sketcher.Constraint("Vertical", 7))
sketch21.addConstraint(Sketcher.Constraint("Horizontal", 8))
sketch21.addConstraint(Sketcher.Constraint("Vertical", 9))
sketch21.addConstraint(Sketcher.Constraint("Horizontal", 10))
sketch21.addConstraint(Sketcher.Constraint("Vertical", 11))
sketch21.addConstraint(Sketcher.Constraint("Horizontal", 2, 2, 5, 2))
sketch21.addConstraint(Sketcher.Constraint("Horizontal", 0, 2, 7, 2))
sketch21.addConstraint(Sketcher.Constraint("Vertical", 5, 2, 8, 2))
sketch21.addConstraint(Sketcher.Constraint("Vertical", 3, 2, 10, 2))
sketch21.addConstraint(Sketcher.Constraint("Equal", 5, 9))
sketch21.addConstraint(Sketcher.Constraint("DistanceX", 0, 2, 0, 1, Q("5 mm")))
sketch21.addConstraint(Sketcher.Constraint("DistanceX", 4, 1, 4, 2, Q("3.3 mm")))
sketch21.addConstraint(Sketcher.Constraint("DistanceX", 6, 1, 6, 2, Q("16.7 mm")))
sketch21.addConstraint(Sketcher.Constraint("DistanceY", 1, 1, 1, 2, Q("4.4 mm")))
sketch21.addConstraint(Sketcher.Constraint("DistanceY", 3, 1, 3, 2, Q("1.5 mm")))
sketch21.addConstraint(Sketcher.Constraint("DistanceX", 0, 2, -1, 1, Q("120 mm")))
sketch21.addConstraint(Sketcher.Constraint("DistanceY", -1, 1, 0, 2, Q("58.736739 mm")))
pocket16 = body.newObject("PartDesign::Pocket", "Pocket015")
pocket16.Profile = sketch21
pocket16.Length = 5
pocket16.Reversed = True

# Sketch on XY plane
sketch22 = body.newObject("Sketcher::SketchObject", "Sketch021")
sketch22.AttachmentSupport = (doc.getObject("XY_Plane"), [""])
sketch22.MapMode = "FlatFace"
sketch22.addGeometry(Part.Circle(App.Vector(38, -39, 0), App.Vector(0, 0, 1), 10), False)
sketch22.addConstraint(Sketcher.Constraint("Diameter", 0, Q("20 mm")))
sketch22.addConstraint(Sketcher.Constraint("DistanceY", 0, 3, -1, 1, Q("38.978399 mm")))
sketch22.addConstraint(Sketcher.Constraint("DistanceX", -1, 1, 0, 3, Q("38.295563 mm")))
pocket17 = body.newObject("PartDesign::Pocket", "Pocket016")
pocket17.Profile = sketch22
pocket17.Length = 5
pocket17.Reversed = True

# Sketch on XY plane
sketch23 = body.newObject("Sketcher::SketchObject", "Sketch022")
sketch23.AttachmentSupport = (doc.getObject("XY_Plane"), [""])
sketch23.MapMode = "FlatFace"
sketch23.addGeometry(Part.Circle(App.Vector(28.2, -53.4, 0), App.Vector(0, 0, 1), 2), False)
sketch23.addConstraint(Sketcher.Constraint("Diameter", 0, Q("4 mm")))
sketch23.addConstraint(Sketcher.Constraint("DistanceX", -1, 1, 0, 3, Q("28.160357 mm")))
sketch23.addConstraint(Sketcher.Constraint("DistanceY", 0, 3, -1, 1, Q("53.440417 mm")))
pocket18 = body.newObject("PartDesign::Pocket", "Pocket017")
pocket18.Profile = sketch23
pocket18.Length = 5
pocket18.Reversed = True

doc.recompute()
